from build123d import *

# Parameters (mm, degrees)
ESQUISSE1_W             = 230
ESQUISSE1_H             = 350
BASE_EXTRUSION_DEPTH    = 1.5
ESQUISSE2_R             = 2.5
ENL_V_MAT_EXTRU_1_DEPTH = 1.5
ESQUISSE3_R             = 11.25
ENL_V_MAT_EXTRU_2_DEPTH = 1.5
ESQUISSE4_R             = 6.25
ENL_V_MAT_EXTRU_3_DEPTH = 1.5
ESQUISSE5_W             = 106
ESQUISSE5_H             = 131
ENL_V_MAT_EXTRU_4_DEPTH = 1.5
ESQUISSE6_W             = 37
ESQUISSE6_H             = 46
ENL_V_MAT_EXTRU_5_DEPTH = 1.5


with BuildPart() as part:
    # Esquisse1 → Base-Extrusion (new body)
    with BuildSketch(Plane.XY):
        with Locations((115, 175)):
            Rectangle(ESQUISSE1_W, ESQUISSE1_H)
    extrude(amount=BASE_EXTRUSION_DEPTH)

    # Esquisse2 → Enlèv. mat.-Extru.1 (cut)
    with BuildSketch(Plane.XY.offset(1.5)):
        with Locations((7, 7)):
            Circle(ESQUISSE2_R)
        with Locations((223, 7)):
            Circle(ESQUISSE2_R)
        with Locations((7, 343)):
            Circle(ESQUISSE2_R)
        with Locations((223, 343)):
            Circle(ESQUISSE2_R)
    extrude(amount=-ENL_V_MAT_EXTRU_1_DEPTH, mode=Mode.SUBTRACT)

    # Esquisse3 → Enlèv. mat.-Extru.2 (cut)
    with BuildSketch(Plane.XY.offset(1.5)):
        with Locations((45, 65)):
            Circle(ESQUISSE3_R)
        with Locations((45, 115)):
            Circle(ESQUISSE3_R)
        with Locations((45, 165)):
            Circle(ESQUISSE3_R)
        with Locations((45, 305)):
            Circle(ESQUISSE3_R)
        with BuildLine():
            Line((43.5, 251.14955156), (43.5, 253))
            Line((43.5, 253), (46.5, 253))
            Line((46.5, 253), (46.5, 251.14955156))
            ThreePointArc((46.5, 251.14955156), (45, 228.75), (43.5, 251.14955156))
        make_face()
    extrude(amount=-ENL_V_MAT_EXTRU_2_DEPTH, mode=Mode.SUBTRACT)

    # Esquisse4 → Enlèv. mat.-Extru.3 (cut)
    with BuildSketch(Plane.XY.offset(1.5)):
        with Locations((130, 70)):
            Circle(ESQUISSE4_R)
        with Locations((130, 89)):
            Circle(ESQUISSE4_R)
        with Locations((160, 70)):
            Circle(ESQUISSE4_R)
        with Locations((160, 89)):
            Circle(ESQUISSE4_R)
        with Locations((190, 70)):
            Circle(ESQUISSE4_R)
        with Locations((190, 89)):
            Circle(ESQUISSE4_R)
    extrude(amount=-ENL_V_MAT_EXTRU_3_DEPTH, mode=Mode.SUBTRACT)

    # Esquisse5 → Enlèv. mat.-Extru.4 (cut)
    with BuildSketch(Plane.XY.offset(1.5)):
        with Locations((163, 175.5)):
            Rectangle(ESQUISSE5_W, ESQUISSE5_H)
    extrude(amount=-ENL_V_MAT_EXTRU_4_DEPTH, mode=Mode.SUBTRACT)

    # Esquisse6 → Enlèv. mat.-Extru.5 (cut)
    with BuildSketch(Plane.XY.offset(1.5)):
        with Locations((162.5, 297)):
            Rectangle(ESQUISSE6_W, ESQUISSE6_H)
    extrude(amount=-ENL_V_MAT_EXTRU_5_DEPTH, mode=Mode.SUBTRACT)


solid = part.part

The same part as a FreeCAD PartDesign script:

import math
import FreeCAD as App
import Part
import Sketcher

V = App.Vector

doc = App.newDocument("Part")
body = doc.addObject("PartDesign::Body", "Body")

# Sketch on XY plane
sketch1 = body.newObject("Sketcher::SketchObject", "Sketch")
sketch1.AttachmentSupport = (doc.getObject("XY_Plane"), [""])
sketch1.MapMode = "FlatFace"
sketch1.addGeometry([
    Part.LineSegment(V(0, 350, 0), V(0, 0, 0)),
    Part.LineSegment(V(0, 0, 0), V(230, 0, 0)),
    Part.LineSegment(V(230, 0, 0), V(230, 350, 0)),
    Part.LineSegment(V(230, 350, 0), V(0, 350, 0)),
], False)
sketch1.addConstraint([
    Sketcher.Constraint("Coincident", 0, 2, 1, 1),
    Sketcher.Constraint("Coincident", 1, 2, 2, 1),
    Sketcher.Constraint("Coincident", 2, 2, 3, 1),
    Sketcher.Constraint("Coincident", 3, 2, 0, 1),
    Sketcher.Constraint("Vertical", 0),
    Sketcher.Constraint("Horizontal", 1),
    Sketcher.Constraint("Vertical", 2),
    Sketcher.Constraint("Horizontal", 3),
    Sketcher.Constraint("Coincident", 0, 2, -1, 1),
    Sketcher.Constraint("DistanceX", 1, 1, 1, 2, 230.0),
    Sketcher.Constraint("DistanceY", 0, 2, 0, 1, 350.0),
])
pad1 = body.newObject("PartDesign::Pad", "Pad")
pad1.Profile = sketch1
pad1.Length = 1.5

# Sketch on XY plane
sketch2 = body.newObject("Sketcher::SketchObject", "Sketch001")
sketch2.AttachmentSupport = (doc.getObject("XY_Plane"), [""])
sketch2.MapMode = "FlatFace"
sketch2.AttachmentOffset = App.Placement(V(0, 0, 1.5), App.Rotation())
sketch2.addGeometry([
    Part.Circle(V(7, 7, 0), V(0, 0, 1), 2.5),
    Part.Circle(V(223, 7, 0), V(0, 0, 1), 2.5),
    Part.Circle(V(7, 343, 0), V(0, 0, 1), 2.5),
    Part.Circle(V(223, 343, 0), V(0, 0, 1), 2.5),
], False)
sketch2.addConstraint([
    Sketcher.Constraint("Equal", 0, 1),
    Sketcher.Constraint("Equal", 1, 2),
    Sketcher.Constraint("Equal", 2, 3),
    Sketcher.Constraint("Horizontal", 0, 3, 1, 3),
    Sketcher.Constraint("Horizontal", 2, 3, 3, 3),
    Sketcher.Constraint("Vertical", 0, 3, 2, 3),
    Sketcher.Constraint("Vertical", 1, 3, 3, 3),
    Sketcher.Constraint("Diameter", 0, 5.0),
    Sketcher.Constraint("DistanceX", -1, 1, 0, 3, 7.0),
    Sketcher.Constraint("DistanceY", -1, 1, 0, 3, 7.0),
    Sketcher.Constraint("DistanceX", -1, 1, 1, 3, 223.0),
    Sketcher.Constraint("DistanceY", -1, 1, 2, 3, 343.0),
])
pocket1 = body.newObject("PartDesign::Pocket", "Pocket")
pocket1.Profile = sketch2
pocket1.Length = 1.5

# Sketch on XY plane
sketch3 = body.newObject("Sketcher::SketchObject", "Sketch002")
sketch3.AttachmentSupport = (doc.getObject("XY_Plane"), [""])
sketch3.MapMode = "FlatFace"
sketch3.AttachmentOffset = App.Placement(V(0, 0, 1.5), App.Rotation())
sketch3.addGeometry([
    Part.Circle(V(45, 65, 0), V(0, 0, 1), 11.2),  # 0
    Part.Circle(V(45, 115, 0), V(0, 0, 1), 11.2),  # 1
    Part.Circle(V(45, 165, 0), V(0, 0, 1), 11.2),  # 2
    Part.Circle(V(45, 305, 0), V(0, 0, 1), 11.2),  # 3
    Part.LineSegment(V(43.5, 253, 0), V(43.5, 251.1, 0)),  # 4
    Part.ArcOfCircle(Part.Circle(V(45, 240, 0), V(0, 0, 1), 11.2), math.radians(98), math.radians(442)),  # 5
    Part.LineSegment(V(46.5, 251.1, 0), V(46.5, 253, 0)),  # 6
    Part.LineSegment(V(46.5, 253, 0), V(43.5, 253, 0)),  # 7
], False)
sketch3.addConstraint([
    Sketcher.Constraint("Coincident", 4, 2, 5, 1),
    Sketcher.Constraint("Coincident", 5, 2, 6, 1),
    Sketcher.Constraint("Coincident", 6, 2, 7, 1),
    Sketcher.Constraint("Coincident", 7, 2, 4, 1),
    Sketcher.Constraint("Vertical", 4),
    Sketcher.Constraint("Vertical", 6),
    Sketcher.Constraint("Horizontal", 7),
    Sketcher.Constraint("Equal", 0, 1),
    Sketcher.Constraint("Equal", 1, 2),
    Sketcher.Constraint("Equal", 2, 3),
    Sketcher.Constraint("Equal", 3, 5),
    Sketcher.Constraint("Horizontal", 4, 2, 5, 2),
    Sketcher.Constraint("Vertical", 0, 3, 1, 3),
    Sketcher.Constraint("Vertical", 1, 3, 2, 3),
    Sketcher.Constraint("Vertical", 2, 3, 3, 3),
    Sketcher.Constraint("Vertical", 3, 3, 5, 3),
    Sketcher.Constraint("Diameter", 0, 22.5),
    Sketcher.Constraint("DistanceX", 7, 2, 7, 1, 3.0),
    Sketcher.Constraint("DistanceX", -1, 1, 0, 3, 45.0),
    Sketcher.Constraint("DistanceY", -1, 1, 0, 3, 65.0),
    Sketcher.Constraint("DistanceY", -1, 1, 1, 3, 115.0),
    Sketcher.Constraint("DistanceY", -1, 1, 2, 3, 165.0),
    Sketcher.Constraint("DistanceY", -1, 1, 3, 3, 305.0),
    Sketcher.Constraint("DistanceY", -1, 1, 5, 3, 240.0),
    Sketcher.Constraint("DistanceY", -1, 1, 6, 2, 253.0),
])
pocket2 = body.newObject("PartDesign::Pocket", "Pocket001")
pocket2.Profile = sketch3
pocket2.Length = 1.5

# Sketch on XY plane
sketch4 = body.newObject("Sketcher::SketchObject", "Sketch003")
sketch4.AttachmentSupport = (doc.getObject("XY_Plane"), [""])
sketch4.MapMode = "FlatFace"
sketch4.AttachmentOffset = App.Placement(V(0, 0, 1.5), App.Rotation())
sketch4.addGeometry([
    Part.Circle(V(130, 70, 0), V(0, 0, 1), 6),  # 0
    Part.Circle(V(130, 89, 0), V(0, 0, 1), 6),  # 1
    Part.Circle(V(160, 70, 0), V(0, 0, 1), 6),  # 2
    Part.Circle(V(160, 89, 0), V(0, 0, 1), 6),  # 3
    Part.Circle(V(190, 70, 0), V(0, 0, 1), 6),  # 4
    Part.Circle(V(190, 89, 0), V(0, 0, 1), 6),  # 5
], False)
sketch4.addConstraint([
    Sketcher.Constraint("Equal", 0, 1),
    Sketcher.Constraint("Equal", 1, 2),
    Sketcher.Constraint("Equal", 2, 3),
    Sketcher.Constraint("Equal", 3, 4),
    Sketcher.Constraint("Equal", 4, 5),
    Sketcher.Constraint("Horizontal", 0, 3, 2, 3),
    Sketcher.Constraint("Horizontal", 1, 3, 3, 3),
    Sketcher.Constraint("Horizontal", 2, 3, 4, 3),
    Sketcher.Constraint("Horizontal", 3, 3, 5, 3),
    Sketcher.Constraint("Vertical", 0, 3, 1, 3),
    Sketcher.Constraint("Vertical", 2, 3, 3, 3),
    Sketcher.Constraint("Vertical", 4, 3, 5, 3),
    Sketcher.Constraint("Diameter", 0, 12.5),
    Sketcher.Constraint("DistanceX", -1, 1, 0, 3, 130.0),
    Sketcher.Constraint("DistanceY", -1, 1, 0, 3, 70.0),
    Sketcher.Constraint("DistanceY", -1, 1, 1, 3, 89.0),
    Sketcher.Constraint("DistanceX", -1, 1, 2, 3, 160.0),
    Sketcher.Constraint("DistanceX", -1, 1, 4, 3, 190.0),
])
pocket3 = body.newObject("PartDesign::Pocket", "Pocket002")
pocket3.Profile = sketch4
pocket3.Length = 1.5

# Sketch on XY plane
sketch5 = body.newObject("Sketcher::SketchObject", "Sketch004")
sketch5.AttachmentSupport = (doc.getObject("XY_Plane"), [""])
sketch5.MapMode = "FlatFace"
sketch5.AttachmentOffset = App.Placement(V(0, 0, 1.5), App.Rotation())
sketch5.addGeometry([
    Part.LineSegment(V(110, 241, 0), V(110, 110, 0)),
    Part.LineSegment(V(110, 110, 0), V(216, 110, 0)),
    Part.LineSegment(V(216, 110, 0), V(216, 241, 0)),
    Part.LineSegment(V(216, 241, 0), V(110, 241, 0)),
], False)
sketch5.addConstraint([
    Sketcher.Constraint("Coincident", 0, 2, 1, 1),
    Sketcher.Constraint("Coincident", 1, 2, 2, 1),
    Sketcher.Constraint("Coincident", 2, 2, 3, 1),
    Sketcher.Constraint("Coincident", 3, 2, 0, 1),
    Sketcher.Constraint("Vertical", 0),
    Sketcher.Constraint("Horizontal", 1),
    Sketcher.Constraint("Vertical", 2),
    Sketcher.Constraint("Horizontal", 3),
    Sketcher.Constraint("DistanceX", 1, 1, 1, 2, 106.0),
    Sketcher.Constraint("DistanceY", 0, 2, 0, 1, 131.0),
    Sketcher.Constraint("DistanceX", -1, 1, 0, 2, 110.0),
    Sketcher.Constraint("DistanceY", -1, 1, 0, 2, 110.0),
])
pocket4 = body.newObject("PartDesign::Pocket", "Pocket003")
pocket4.Profile = sketch5
pocket4.Length = 1.5

# Sketch on XY plane
sketch6 = body.newObject("Sketcher::SketchObject", "Sketch005")
sketch6.AttachmentSupport = (doc.getObject("XY_Plane"), [""])
sketch6.MapMode = "FlatFace"
sketch6.AttachmentOffset = App.Placement(V(0, 0, 1.5), App.Rotation())
sketch6.addGeometry([
    Part.LineSegment(V(144, 320, 0), V(144, 274, 0)),
    Part.LineSegment(V(144, 274, 0), V(181, 274, 0)),
    Part.LineSegment(V(181, 274, 0), V(181, 320, 0)),
    Part.LineSegment(V(181, 320, 0), V(144, 320, 0)),
], False)
sketch6.addConstraint([
    Sketcher.Constraint("Coincident", 0, 2, 1, 1),
    Sketcher.Constraint("Coincident", 1, 2, 2, 1),
    Sketcher.Constraint("Coincident", 2, 2, 3, 1),
    Sketcher.Constraint("Coincident", 3, 2, 0, 1),
    Sketcher.Constraint("Vertical", 0),
    Sketcher.Constraint("Horizontal", 1),
    Sketcher.Constraint("Vertical", 2),
    Sketcher.Constraint("Horizontal", 3),
    Sketcher.Constraint("DistanceX", 1, 1, 1, 2, 37.0),
    Sketcher.Constraint("DistanceY", 0, 2, 0, 1, 46.0),
    Sketcher.Constraint("DistanceX", -1, 1, 0, 2, 144.0),
    Sketcher.Constraint("DistanceY", -1, 1, 0, 2, 274.0),
])
pocket5 = body.newObject("PartDesign::Pocket", "Pocket004")
pocket5.Profile = sketch6
pocket5.Length = 1.5

doc.recompute()
